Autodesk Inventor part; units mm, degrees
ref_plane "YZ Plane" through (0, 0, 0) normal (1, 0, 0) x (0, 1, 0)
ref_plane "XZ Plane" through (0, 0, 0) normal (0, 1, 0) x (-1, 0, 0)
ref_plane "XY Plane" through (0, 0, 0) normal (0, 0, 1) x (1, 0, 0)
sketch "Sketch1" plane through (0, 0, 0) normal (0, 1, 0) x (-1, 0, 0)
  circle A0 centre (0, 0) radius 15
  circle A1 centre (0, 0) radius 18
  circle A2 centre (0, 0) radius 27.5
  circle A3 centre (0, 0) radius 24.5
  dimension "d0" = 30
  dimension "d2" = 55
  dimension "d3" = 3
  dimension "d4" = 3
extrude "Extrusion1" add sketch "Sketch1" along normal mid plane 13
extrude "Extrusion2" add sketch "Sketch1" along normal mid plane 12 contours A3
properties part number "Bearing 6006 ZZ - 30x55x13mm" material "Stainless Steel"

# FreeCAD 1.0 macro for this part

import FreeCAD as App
import Part
import Sketcher
from FreeCAD import Vector

doc = App.newDocument("Part")
params = doc.addObject("Spreadsheet::Sheet", "Params")
for row, (alias, value) in enumerate([
    ("sketch1_diameter", "30 mm"),
    ("sketch1_diameter2", "55 mm"),
    ("sketch1_diameter3", "36 mm"),
    ("sketch1_diameter4", "49 mm"),
    ("pad1_length", "13 mm"),
    ("sketch2_diameter", "49 mm"),
    ("sketch2_diameter2", "36 mm"),
    ("pad2_length", "12 mm"),
], start=1):
    params.set(f"A{row}", alias)
    params.set(f"B{row}", "=" + value)
    params.setAlias(f"B{row}", alias)

body = doc.addObject("PartDesign::Body", "Body")
body.AllowCompound = True

sketch1 = body.newObject("Sketcher::SketchObject", "Sketch")
sketch1.AttachmentSupport = (doc.getObject("XZ_Plane"), [""])
sketch1.MapMode = "FlatFace"
sketch1.addGeometry([
    Part.Circle(Vector(0, 0, 0), Vector(0, 0, 1), 18),
    Part.Circle(Vector(0, 0, 0), Vector(0, 0, 1), 15),
    Part.Circle(Vector(0, 0, 0), Vector(0, 0, 1), 27.5),
    Part.Circle(Vector(0, 0, 0), Vector(0, 0, 1), 24.5),
], False)
sketch1.addConstraint([
    Sketcher.Constraint("Coincident", 0, 3, -1, 1),
    Sketcher.Constraint("Coincident", 1, 3, -1, 1),
    Sketcher.Constraint("Coincident", 2, 3, -1, 1),
    Sketcher.Constraint("Coincident", 3, 3, -1, 1),
    Sketcher.Constraint("Diameter", 1, 30.0),
    Sketcher.Constraint("Diameter", 2, 55.0),
    Sketcher.Constraint("Diameter", 0, 36.0),
    Sketcher.Constraint("Diameter", 3, 49.0),
])
sketch1.setExpression("Constraints[4]", "Params.sketch1_diameter")
sketch1.setExpression("Constraints[5]", "Params.sketch1_diameter2")
sketch1.setExpression("Constraints[6]", "Params.sketch1_diameter3")
sketch1.setExpression("Constraints[7]", "Params.sketch1_diameter4")
pad1 = body.newObject("PartDesign::Pad", "Pad")
pad1.Profile = sketch1
pad1.setExpression("Length", "Params.pad1_length")
pad1.Midplane = True

sketch2 = body.newObject("Sketcher::SketchObject", "Sketch001")
sketch2.AttachmentSupport = (doc.getObject("XZ_Plane"), [""])
sketch2.MapMode = "FlatFace"
sketch2.addGeometry([
    Part.Circle(Vector(0, 0, 0), Vector(0, 0, 1), 24.5),
    Part.Circle(Vector(0, 0, 0), Vector(0, 0, 1), 18),
], False)
sketch2.addConstraint([
    Sketcher.Constraint("Coincident", 0, 3, -1, 1),
    Sketcher.Constraint("Coincident", 1, 3, -1, 1),
    Sketcher.Constraint("Diameter", 0, 49.0),
    Sketcher.Constraint("Diameter", 1, 36.0),
])
sketch2.setExpression("Constraints[2]", "Params.sketch2_diameter")
sketch2.setExpression("Constraints[3]", "Params.sketch2_diameter2")
pad2 = body.newObject("PartDesign::Pad", "Pad001")
pad2.Profile = sketch2
pad2.setExpression("Length", "Params.pad2_length")
pad2.Midplane = True

doc.recompute()
